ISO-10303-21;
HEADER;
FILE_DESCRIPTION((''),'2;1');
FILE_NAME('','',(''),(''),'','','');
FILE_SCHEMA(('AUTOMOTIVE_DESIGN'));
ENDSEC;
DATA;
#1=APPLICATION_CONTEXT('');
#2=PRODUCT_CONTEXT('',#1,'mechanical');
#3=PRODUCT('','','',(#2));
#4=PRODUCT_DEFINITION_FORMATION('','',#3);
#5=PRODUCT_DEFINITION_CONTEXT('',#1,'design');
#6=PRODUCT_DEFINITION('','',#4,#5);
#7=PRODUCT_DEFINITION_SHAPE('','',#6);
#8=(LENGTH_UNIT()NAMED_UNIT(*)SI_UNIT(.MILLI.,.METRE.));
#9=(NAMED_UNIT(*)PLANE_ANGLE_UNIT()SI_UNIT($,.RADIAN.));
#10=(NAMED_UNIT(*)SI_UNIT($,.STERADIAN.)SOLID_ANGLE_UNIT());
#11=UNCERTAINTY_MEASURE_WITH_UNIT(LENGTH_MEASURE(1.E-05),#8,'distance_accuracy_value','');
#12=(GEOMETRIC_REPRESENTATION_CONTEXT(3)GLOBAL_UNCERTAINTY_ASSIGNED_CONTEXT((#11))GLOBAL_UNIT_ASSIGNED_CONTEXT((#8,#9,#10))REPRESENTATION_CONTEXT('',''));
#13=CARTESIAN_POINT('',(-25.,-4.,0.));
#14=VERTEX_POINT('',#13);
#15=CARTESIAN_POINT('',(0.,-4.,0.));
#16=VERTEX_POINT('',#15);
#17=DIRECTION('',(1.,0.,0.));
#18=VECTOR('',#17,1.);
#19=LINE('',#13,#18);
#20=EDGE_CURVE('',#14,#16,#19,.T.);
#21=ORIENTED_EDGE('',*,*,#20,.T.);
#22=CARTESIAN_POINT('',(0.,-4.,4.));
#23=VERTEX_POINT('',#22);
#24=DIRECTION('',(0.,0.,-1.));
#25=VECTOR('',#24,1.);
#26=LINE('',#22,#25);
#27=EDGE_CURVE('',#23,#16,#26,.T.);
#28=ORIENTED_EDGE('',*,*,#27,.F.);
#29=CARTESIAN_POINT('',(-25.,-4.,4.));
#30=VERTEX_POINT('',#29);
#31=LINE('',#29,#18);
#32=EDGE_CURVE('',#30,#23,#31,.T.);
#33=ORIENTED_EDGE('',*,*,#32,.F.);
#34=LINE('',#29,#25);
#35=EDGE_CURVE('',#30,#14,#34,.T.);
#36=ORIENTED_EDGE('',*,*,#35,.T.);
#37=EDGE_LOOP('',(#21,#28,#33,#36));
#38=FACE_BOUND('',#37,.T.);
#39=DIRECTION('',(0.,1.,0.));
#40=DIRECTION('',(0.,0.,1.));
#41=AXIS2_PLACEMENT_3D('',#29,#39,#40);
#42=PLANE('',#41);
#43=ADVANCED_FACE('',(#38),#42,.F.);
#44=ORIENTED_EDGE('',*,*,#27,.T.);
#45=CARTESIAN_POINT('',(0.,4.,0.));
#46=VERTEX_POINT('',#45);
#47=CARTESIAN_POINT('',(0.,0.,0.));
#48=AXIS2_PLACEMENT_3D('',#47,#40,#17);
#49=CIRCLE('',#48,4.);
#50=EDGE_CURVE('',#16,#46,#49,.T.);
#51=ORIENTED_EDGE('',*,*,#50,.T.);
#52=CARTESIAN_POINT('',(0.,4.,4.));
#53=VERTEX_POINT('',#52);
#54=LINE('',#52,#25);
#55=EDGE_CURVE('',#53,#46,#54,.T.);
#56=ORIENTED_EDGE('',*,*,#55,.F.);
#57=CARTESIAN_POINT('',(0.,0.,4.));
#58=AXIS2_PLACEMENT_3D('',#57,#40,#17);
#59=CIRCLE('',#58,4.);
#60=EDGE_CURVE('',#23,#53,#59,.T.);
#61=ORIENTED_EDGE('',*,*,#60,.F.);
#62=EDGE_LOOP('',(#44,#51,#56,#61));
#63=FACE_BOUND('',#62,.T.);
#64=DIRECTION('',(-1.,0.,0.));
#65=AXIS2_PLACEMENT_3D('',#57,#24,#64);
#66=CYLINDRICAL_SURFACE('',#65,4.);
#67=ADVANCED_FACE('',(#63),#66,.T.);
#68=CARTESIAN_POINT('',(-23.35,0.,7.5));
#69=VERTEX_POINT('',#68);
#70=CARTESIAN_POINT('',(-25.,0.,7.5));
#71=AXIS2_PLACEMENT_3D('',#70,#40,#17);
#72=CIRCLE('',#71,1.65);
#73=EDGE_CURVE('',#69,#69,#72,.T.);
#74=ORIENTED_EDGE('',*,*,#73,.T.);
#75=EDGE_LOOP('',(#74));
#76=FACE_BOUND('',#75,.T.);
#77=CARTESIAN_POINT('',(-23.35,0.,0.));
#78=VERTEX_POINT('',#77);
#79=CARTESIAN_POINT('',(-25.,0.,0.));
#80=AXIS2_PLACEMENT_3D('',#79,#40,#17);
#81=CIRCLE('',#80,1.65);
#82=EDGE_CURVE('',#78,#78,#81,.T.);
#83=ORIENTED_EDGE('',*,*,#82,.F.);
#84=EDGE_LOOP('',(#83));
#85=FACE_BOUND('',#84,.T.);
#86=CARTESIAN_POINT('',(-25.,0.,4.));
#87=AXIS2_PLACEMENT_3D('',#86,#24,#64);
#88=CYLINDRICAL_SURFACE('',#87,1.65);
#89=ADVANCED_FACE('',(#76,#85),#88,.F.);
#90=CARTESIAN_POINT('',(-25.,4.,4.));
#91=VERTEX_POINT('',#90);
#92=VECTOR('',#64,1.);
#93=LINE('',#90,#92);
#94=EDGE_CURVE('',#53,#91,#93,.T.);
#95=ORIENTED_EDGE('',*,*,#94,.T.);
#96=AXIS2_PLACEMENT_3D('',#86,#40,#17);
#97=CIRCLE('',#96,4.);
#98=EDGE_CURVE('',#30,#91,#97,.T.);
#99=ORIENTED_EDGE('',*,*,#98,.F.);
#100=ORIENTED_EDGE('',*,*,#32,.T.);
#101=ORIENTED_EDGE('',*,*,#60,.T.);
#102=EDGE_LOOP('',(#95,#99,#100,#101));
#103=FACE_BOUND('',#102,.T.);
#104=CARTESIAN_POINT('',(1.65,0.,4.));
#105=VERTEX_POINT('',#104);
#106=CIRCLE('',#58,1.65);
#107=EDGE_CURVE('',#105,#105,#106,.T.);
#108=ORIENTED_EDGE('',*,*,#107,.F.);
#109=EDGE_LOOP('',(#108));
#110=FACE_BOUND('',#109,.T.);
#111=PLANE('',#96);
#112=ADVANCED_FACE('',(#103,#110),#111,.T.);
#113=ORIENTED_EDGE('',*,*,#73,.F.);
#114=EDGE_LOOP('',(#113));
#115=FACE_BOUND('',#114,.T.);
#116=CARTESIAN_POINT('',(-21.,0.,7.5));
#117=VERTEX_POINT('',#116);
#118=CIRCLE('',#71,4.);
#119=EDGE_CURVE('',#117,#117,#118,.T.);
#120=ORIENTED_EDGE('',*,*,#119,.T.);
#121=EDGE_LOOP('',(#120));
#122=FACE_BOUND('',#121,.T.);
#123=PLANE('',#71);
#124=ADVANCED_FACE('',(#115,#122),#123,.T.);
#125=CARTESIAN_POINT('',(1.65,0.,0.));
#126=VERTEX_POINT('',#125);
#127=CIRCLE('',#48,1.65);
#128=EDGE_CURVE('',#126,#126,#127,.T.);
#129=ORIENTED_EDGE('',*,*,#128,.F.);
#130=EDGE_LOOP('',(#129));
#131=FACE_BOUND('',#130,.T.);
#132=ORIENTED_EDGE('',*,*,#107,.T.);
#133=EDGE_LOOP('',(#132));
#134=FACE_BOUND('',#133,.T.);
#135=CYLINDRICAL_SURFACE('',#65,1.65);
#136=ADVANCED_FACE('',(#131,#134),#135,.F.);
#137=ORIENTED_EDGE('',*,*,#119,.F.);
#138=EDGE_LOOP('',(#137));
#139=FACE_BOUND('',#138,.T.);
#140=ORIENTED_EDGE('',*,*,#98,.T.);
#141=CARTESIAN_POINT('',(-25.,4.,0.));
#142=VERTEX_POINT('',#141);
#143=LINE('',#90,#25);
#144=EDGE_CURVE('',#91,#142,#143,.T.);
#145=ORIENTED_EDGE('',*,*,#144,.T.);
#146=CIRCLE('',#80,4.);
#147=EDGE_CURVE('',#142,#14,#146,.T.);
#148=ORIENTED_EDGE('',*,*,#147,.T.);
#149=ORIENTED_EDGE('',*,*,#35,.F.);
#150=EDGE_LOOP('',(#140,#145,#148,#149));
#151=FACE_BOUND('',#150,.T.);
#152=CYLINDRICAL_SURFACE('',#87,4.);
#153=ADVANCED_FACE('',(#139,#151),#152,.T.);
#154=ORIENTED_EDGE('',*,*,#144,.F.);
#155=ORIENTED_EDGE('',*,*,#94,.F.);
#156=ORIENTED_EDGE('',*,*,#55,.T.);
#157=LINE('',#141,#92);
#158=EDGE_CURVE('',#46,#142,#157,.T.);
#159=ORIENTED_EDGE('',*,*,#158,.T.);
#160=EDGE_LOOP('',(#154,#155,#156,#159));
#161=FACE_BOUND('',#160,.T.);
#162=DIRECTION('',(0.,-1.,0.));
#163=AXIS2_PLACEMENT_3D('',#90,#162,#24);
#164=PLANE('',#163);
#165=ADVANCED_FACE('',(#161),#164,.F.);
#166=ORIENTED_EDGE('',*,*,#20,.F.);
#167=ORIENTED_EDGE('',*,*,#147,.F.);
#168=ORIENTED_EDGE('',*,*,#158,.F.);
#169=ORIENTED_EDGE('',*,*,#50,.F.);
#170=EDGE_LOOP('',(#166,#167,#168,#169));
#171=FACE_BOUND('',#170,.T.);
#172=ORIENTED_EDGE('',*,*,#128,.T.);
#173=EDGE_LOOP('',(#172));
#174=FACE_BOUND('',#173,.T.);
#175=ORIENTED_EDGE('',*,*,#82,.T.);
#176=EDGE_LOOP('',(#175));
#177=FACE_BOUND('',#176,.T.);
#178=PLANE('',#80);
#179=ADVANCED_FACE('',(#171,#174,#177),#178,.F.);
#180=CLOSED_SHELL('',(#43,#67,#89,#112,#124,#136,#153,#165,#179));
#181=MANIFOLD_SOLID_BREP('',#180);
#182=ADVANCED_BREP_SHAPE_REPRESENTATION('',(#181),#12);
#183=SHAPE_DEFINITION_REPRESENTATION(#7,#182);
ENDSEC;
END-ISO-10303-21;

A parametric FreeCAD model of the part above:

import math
import FreeCAD as App
import Part
import Sketcher
from FreeCAD import Vector

doc = App.newDocument("Part")
params = doc.addObject("Spreadsheet::Sheet", "Params")
for row, (alias, value) in enumerate([
    ("sketch1_radius", "4 mm"),
    ("sketch1_diameter", "3.3 mm"),
    ("sketch1_width", "25 mm"),
    ("pad1_length", "4 mm"),
    ("sketch2_diameter", "8 mm"),
    ("sketch2_diameter2", "3.3 mm"),
    ("pad2_length", "3.5 mm"),
], start=1):
    params.set(f"A{row}", alias)
    params.set(f"B{row}", "=" + value)
    params.setAlias(f"B{row}", alias)

body = doc.addObject("PartDesign::Body", "Body")

sketch1 = body.newObject("Sketcher::SketchObject", "Sketch")
sketch1.AttachmentSupport = (doc.getObject("XY_Plane"), [""])
sketch1.MapMode = "FlatFace"
sketch1.addGeometry([
    Part.LineSegment(Vector(0, 4, 0), Vector(-25, 4, 0)),
    Part.ArcOfCircle(Part.Circle(Vector(-25, 0, 0), Vector(0, 0, 1), 4), math.radians(90), math.radians(270)),
    Part.LineSegment(Vector(-25, -4, 0), Vector(0, -4, 0)),
    Part.ArcOfCircle(Part.Circle(Vector(0, 0, 0), Vector(0, 0, 1), 4), math.radians(-90), math.radians(90)),
    Part.Circle(Vector(0, 0, 0), Vector(0, 0, 1), 1.6),
    Part.Circle(Vector(-25, 0, 0), Vector(0, 0, 1), 1.6),
], False)
sketch1.addConstraint([
    Sketcher.Constraint("Tangent", 0, 2, 1, 1),
    Sketcher.Constraint("Tangent", 1, 2, 2, 1),
    Sketcher.Constraint("Tangent", 2, 2, 3, 1),
    Sketcher.Constraint("Tangent", 3, 2, 0, 1),
    Sketcher.Constraint("Horizontal", 0),
    Sketcher.Constraint("Horizontal", 2),
    Sketcher.Constraint("Coincident", 3, 3, -1, 1),
    Sketcher.Constraint("Coincident", 4, 3, -1, 1),
    Sketcher.Constraint("Coincident", 5, 3, 1, 3),
    Sketcher.Constraint("Equal", 4, 5),
    Sketcher.Constraint("Radius", 1, 4.0),
    Sketcher.Constraint("Diameter", 4, 3.3),
    Sketcher.Constraint("DistanceX", 0, 2, 0, 1, 25.0),
])
sketch1.setExpression("Constraints[10]", "Params.sketch1_radius")
sketch1.setExpression("Constraints[11]", "Params.sketch1_diameter")
sketch1.setExpression("Constraints[12]", "Params.sketch1_width")
pad1 = body.newObject("PartDesign::Pad", "Pad")
pad1.Profile = sketch1
pad1.setExpression("Length", "Params.pad1_length")

sketch2 = body.newObject("Sketcher::SketchObject", "Sketch001")
sketch2.AttachmentSupport = (doc.getObject("XY_Plane"), [""])
sketch2.MapMode = "FlatFace"
sketch2.AttachmentOffset = App.Placement(Vector(0, 0, 4), App.Rotation())
sketch2.addGeometry([
    Part.Circle(Vector(-25, 0, 0), Vector(0, 0, 1), 4),
    Part.Circle(Vector(-25, 0, 0), Vector(0, 0, 1), 1.6),
], False)
sketch2.addConstraint([
    Sketcher.Constraint("Coincident", 1, 3, 0, 3),
    Sketcher.Constraint("PointOnObject", 0, 3, -1),
    Sketcher.Constraint("Diameter", 0, 8.0),
    Sketcher.Constraint("Diameter", 1, 3.3),
    Sketcher.Constraint("DistanceX", 0, 3, -1, 1, 25.0),
])
sketch2.setExpression("Constraints[2]", "Params.sketch2_diameter")
sketch2.setExpression("Constraints[3]", "Params.sketch2_diameter2")
pad2 = body.newObject("PartDesign::Pad", "Pad001")
pad2.Profile = sketch2
pad2.setExpression("Length", "Params.pad2_length")

doc.recompute()
